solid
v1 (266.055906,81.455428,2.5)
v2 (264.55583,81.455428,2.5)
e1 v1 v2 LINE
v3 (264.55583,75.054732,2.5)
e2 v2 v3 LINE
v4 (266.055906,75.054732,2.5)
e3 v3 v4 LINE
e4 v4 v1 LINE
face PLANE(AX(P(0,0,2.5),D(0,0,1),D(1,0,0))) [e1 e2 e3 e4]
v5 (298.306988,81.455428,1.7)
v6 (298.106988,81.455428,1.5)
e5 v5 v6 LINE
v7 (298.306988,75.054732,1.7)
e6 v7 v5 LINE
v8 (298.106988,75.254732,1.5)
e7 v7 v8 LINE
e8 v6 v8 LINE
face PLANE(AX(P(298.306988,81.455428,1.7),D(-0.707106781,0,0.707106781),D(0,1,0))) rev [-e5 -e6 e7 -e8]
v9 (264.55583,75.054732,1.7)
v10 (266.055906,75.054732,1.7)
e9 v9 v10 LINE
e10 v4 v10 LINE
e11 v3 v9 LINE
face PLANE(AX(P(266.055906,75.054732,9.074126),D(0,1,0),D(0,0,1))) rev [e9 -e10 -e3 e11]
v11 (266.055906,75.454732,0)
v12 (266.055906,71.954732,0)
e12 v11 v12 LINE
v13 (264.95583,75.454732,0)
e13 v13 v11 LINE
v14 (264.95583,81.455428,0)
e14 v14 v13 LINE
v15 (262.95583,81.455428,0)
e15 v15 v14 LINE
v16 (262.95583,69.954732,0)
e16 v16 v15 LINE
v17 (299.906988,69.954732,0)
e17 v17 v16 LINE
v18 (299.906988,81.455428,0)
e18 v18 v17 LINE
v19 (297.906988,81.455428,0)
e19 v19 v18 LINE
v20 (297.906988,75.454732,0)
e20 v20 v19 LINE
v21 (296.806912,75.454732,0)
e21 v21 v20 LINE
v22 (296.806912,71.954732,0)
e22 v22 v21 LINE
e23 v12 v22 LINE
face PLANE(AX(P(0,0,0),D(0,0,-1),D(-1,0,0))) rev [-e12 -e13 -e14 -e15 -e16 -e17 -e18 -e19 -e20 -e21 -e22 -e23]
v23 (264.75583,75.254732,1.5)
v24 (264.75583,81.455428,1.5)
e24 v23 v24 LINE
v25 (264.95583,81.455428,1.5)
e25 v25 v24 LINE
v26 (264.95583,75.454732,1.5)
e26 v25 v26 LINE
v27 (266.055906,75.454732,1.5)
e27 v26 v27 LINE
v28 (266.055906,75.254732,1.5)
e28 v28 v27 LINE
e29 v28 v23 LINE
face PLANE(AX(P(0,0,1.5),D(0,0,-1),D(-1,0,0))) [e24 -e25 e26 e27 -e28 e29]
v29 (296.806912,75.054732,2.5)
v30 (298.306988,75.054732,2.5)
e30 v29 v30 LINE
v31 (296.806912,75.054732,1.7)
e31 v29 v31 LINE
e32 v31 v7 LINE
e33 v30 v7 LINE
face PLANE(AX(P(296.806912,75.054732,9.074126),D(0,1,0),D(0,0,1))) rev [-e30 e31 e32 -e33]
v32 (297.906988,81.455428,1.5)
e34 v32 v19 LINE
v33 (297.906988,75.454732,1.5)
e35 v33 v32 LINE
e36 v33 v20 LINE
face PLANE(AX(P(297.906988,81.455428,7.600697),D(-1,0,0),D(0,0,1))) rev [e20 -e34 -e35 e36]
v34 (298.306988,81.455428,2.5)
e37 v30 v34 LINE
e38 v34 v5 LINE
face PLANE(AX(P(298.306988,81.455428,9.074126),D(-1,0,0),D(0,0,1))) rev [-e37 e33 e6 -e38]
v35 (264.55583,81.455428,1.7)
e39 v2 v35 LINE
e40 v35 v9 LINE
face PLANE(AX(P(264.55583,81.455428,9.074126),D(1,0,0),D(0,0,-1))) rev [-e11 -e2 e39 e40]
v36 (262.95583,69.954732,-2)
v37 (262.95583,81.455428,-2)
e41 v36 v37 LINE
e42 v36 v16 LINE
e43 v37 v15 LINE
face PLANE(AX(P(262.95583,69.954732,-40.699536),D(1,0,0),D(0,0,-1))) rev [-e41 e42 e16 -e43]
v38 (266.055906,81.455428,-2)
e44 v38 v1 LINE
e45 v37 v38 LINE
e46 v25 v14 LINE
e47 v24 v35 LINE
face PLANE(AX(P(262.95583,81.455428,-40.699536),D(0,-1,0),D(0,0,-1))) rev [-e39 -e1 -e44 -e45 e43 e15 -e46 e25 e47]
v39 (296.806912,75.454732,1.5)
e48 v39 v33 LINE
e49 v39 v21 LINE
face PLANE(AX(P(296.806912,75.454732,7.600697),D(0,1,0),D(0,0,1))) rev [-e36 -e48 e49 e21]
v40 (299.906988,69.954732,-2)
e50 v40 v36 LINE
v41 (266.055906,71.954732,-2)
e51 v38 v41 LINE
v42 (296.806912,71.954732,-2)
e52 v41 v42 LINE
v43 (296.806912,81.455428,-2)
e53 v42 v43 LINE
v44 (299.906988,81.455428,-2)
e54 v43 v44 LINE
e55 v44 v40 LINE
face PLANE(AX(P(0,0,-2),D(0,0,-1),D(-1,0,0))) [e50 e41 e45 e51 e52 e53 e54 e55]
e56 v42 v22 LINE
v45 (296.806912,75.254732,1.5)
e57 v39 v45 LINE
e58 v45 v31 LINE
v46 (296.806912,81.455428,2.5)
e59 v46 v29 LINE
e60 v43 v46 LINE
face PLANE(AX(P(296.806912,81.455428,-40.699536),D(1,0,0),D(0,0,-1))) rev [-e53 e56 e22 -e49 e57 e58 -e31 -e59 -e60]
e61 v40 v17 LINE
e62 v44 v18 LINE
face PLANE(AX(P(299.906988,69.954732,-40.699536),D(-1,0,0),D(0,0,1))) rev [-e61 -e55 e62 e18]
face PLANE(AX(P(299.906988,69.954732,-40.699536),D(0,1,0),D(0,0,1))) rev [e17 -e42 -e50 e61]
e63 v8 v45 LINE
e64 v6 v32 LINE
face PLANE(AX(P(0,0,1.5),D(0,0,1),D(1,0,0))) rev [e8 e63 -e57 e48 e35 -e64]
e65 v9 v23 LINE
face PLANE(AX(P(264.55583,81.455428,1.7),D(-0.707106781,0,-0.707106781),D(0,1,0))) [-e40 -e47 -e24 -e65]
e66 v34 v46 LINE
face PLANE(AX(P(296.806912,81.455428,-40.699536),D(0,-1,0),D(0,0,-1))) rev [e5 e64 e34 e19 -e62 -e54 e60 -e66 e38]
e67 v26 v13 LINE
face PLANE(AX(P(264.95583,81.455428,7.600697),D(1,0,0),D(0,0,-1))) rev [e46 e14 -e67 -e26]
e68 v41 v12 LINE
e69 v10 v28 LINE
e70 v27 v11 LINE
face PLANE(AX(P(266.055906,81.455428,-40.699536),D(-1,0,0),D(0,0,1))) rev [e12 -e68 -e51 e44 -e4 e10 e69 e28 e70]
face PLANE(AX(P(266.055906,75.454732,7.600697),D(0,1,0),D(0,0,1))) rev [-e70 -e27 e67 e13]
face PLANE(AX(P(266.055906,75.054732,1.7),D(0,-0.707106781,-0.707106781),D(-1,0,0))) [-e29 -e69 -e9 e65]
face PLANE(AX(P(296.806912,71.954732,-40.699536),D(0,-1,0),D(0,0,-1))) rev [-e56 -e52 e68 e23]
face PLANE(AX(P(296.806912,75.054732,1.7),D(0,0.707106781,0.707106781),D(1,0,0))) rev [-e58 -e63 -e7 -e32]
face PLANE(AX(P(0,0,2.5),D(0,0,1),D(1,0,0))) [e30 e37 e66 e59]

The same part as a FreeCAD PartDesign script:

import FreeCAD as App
import Part
import Sketcher


def edges_at(feature, points):
    """Names of the edges that pass closest to the given points."""
    edges = feature.Shape.Edges
    near = lambda p: min(range(len(edges)), key=lambda i: edges[i].distToShape(Part.Vertex(*p))[0])
    return sorted({f"Edge{near(p) + 1}" for p in points})


def add_polygon(sketch, points):
    """Adds a closed chain of lines whose ends are joined by coincident constraints."""
    first, n = sketch.GeometryCount, len(points)
    for a, b in zip(points, points[1:] + points[:1]):
        sketch.addGeometry(Part.LineSegment(App.Vector(*a, 0), App.Vector(*b, 0)), False)
    for i in range(n):
        sketch.addConstraint(Sketcher.Constraint("Coincident", first + i, 2, first + (i + 1) % n, 1))

doc = App.newDocument("Part")
body = doc.addObject("PartDesign::Body", "Body")

sketch1 = body.newObject("Sketcher::SketchObject", "Sketch")
sketch1.AttachmentSupport = (doc.getObject("XY_Plane"), [""])
sketch1.MapMode = "FlatFace"
add_polygon(sketch1, [(263, 81.5), (266.1, 81.5), (266.1, 72), (296.8, 72), (296.8, 81.5), (299.9, 81.5), (299.9, 70), (263, 70)])
sketch1.addConstraint(Sketcher.Constraint("Horizontal", 0))
sketch1.addConstraint(Sketcher.Constraint("Vertical", 1))
sketch1.addConstraint(Sketcher.Constraint("Horizontal", 2))
sketch1.addConstraint(Sketcher.Constraint("Vertical", 3))
sketch1.addConstraint(Sketcher.Constraint("Horizontal", 4))
sketch1.addConstraint(Sketcher.Constraint("Vertical", 5))
sketch1.addConstraint(Sketcher.Constraint("Horizontal", 6))
sketch1.addConstraint(Sketcher.Constraint("Vertical", 7))
sketch1.addConstraint(Sketcher.Constraint("Horizontal", 0, 2, 3, 2))
sketch1.addConstraint(Sketcher.Constraint("Equal", 0, 4))
sketch1.addConstraint(Sketcher.Constraint("DistanceY", 5, 2, 2, 2, 2.0))
sketch1.addConstraint(Sketcher.Constraint("DistanceX", 6, 2, 6, 1, 36.951158))
sketch1.addConstraint(Sketcher.Constraint("DistanceX", 0, 1, 0, 2, 3.100076))
sketch1.addConstraint(Sketcher.Constraint("DistanceY", 1, 2, 1, 1, 9.500695))
sketch1.addConstraint(Sketcher.Constraint("DistanceX", -1, 1, 4, 2, 299.906988))
sketch1.addConstraint(Sketcher.Constraint("DistanceY", -1, 1, 0, 2, 81.455428))
pad1 = body.newObject("PartDesign::Pad", "Pad")
pad1.Profile = sketch1
pad1.Length = 2
pad1.Reversed = True

sketch2 = body.newObject("Sketcher::SketchObject", "Sketch001")
sketch2.AttachmentSupport = (doc.getObject("XY_Plane"), [""])
sketch2.MapMode = "FlatFace"
add_polygon(sketch2, [(265, 81.5), (265, 75.5), (266.1, 75.5), (266.1, 81.5)])
add_polygon(sketch2, [(296.8, 81.5), (296.8, 75.5), (297.9, 75.5), (297.9, 81.5)])
sketch2.addConstraint(Sketcher.Constraint("Vertical", 0))
sketch2.addConstraint(Sketcher.Constraint("Horizontal", 1))
sketch2.addConstraint(Sketcher.Constraint("Vertical", 2))
sketch2.addConstraint(Sketcher.Constraint("Horizontal", 3))
sketch2.addConstraint(Sketcher.Constraint("Vertical", 4))
sketch2.addConstraint(Sketcher.Constraint("Horizontal", 5))
sketch2.addConstraint(Sketcher.Constraint("Vertical", 6))
sketch2.addConstraint(Sketcher.Constraint("Horizontal", 7))
sketch2.addConstraint(Sketcher.Constraint("Horizontal", 1, 2, 4, 2))
sketch2.addConstraint(Sketcher.Constraint("Horizontal", 3, 2, 6, 2))
sketch2.addConstraint(Sketcher.Constraint("Equal", 3, 5))
sketch2.addConstraint(Sketcher.Constraint("DistanceX", 1, 1, 1, 2, 1.100076))
sketch2.addConstraint(Sketcher.Constraint("DistanceY", 0, 2, 0, 1, 6.000695))
sketch2.addConstraint(Sketcher.Constraint("DistanceX", -1, 1, 0, 2, 264.95583))
sketch2.addConstraint(Sketcher.Constraint("DistanceX", -1, 1, 5, 2, 297.906988))
sketch2.addConstraint(Sketcher.Constraint("DistanceY", -1, 1, 0, 2, 75.454732))
pad2 = body.newObject("PartDesign::Pad", "Pad001")
pad2.Profile = sketch2
pad2.Length = 1.5

sketch3 = body.newObject("Sketcher::SketchObject", "Sketch002")
sketch3.AttachmentSupport = (doc.getObject("XY_Plane"), [""])
sketch3.MapMode = "FlatFace"
sketch3.AttachmentOffset = App.Placement(App.Vector(0, 0, 1.5), App.Rotation())
add_polygon(sketch3, [(264.6, 81.5), (264.6, 75.1), (266.1, 75.1), (266.1, 81.5)])
add_polygon(sketch3, [(296.8, 81.5), (296.8, 75.1), (298.3, 75.1), (298.3, 81.5)])
sketch3.addConstraint(Sketcher.Constraint("Vertical", 0))
sketch3.addConstraint(Sketcher.Constraint("Horizontal", 1))
sketch3.addConstraint(Sketcher.Constraint("Vertical", 2))
sketch3.addConstraint(Sketcher.Constraint("Horizontal", 3))
sketch3.addConstraint(Sketcher.Constraint("Vertical", 4))
sketch3.addConstraint(Sketcher.Constraint("Horizontal", 5))
sketch3.addConstraint(Sketcher.Constraint("Vertical", 6))
sketch3.addConstraint(Sketcher.Constraint("Horizontal", 7))
sketch3.addConstraint(Sketcher.Constraint("Horizontal", 1, 2, 4, 2))
sketch3.addConstraint(Sketcher.Constraint("Horizontal", 3, 2, 6, 2))
sketch3.addConstraint(Sketcher.Constraint("Equal", 3, 5))
sketch3.addConstraint(Sketcher.Constraint("DistanceX", 1, 1, 1, 2, 1.500076))
sketch3.addConstraint(Sketcher.Constraint("DistanceY", 0, 2, 0, 1, 6.400695))
sketch3.addConstraint(Sketcher.Constraint("DistanceX", -1, 1, 0, 2, 264.55583))
sketch3.addConstraint(Sketcher.Constraint("DistanceX", -1, 1, 5, 2, 298.306988))
sketch3.addConstraint(Sketcher.Constraint("DistanceY", -1, 1, 0, 2, 75.054732))
pad3 = body.newObject("PartDesign::Pad", "Pad002")
pad3.Profile = sketch3
pad3.Length = 1
doc.recompute()

chamfer = body.newObject("PartDesign::Chamfer", "Chamfer")
chamfer.Base = (pad3, edges_at(pad3, [
    (264.556, 78.255, 1.5),
    (265.306, 75.055, 1.5),
    (297.557, 75.055, 1.5),
    (298.307, 78.255, 1.5),
]))
chamfer.Size = 0.2

doc.recompute()
